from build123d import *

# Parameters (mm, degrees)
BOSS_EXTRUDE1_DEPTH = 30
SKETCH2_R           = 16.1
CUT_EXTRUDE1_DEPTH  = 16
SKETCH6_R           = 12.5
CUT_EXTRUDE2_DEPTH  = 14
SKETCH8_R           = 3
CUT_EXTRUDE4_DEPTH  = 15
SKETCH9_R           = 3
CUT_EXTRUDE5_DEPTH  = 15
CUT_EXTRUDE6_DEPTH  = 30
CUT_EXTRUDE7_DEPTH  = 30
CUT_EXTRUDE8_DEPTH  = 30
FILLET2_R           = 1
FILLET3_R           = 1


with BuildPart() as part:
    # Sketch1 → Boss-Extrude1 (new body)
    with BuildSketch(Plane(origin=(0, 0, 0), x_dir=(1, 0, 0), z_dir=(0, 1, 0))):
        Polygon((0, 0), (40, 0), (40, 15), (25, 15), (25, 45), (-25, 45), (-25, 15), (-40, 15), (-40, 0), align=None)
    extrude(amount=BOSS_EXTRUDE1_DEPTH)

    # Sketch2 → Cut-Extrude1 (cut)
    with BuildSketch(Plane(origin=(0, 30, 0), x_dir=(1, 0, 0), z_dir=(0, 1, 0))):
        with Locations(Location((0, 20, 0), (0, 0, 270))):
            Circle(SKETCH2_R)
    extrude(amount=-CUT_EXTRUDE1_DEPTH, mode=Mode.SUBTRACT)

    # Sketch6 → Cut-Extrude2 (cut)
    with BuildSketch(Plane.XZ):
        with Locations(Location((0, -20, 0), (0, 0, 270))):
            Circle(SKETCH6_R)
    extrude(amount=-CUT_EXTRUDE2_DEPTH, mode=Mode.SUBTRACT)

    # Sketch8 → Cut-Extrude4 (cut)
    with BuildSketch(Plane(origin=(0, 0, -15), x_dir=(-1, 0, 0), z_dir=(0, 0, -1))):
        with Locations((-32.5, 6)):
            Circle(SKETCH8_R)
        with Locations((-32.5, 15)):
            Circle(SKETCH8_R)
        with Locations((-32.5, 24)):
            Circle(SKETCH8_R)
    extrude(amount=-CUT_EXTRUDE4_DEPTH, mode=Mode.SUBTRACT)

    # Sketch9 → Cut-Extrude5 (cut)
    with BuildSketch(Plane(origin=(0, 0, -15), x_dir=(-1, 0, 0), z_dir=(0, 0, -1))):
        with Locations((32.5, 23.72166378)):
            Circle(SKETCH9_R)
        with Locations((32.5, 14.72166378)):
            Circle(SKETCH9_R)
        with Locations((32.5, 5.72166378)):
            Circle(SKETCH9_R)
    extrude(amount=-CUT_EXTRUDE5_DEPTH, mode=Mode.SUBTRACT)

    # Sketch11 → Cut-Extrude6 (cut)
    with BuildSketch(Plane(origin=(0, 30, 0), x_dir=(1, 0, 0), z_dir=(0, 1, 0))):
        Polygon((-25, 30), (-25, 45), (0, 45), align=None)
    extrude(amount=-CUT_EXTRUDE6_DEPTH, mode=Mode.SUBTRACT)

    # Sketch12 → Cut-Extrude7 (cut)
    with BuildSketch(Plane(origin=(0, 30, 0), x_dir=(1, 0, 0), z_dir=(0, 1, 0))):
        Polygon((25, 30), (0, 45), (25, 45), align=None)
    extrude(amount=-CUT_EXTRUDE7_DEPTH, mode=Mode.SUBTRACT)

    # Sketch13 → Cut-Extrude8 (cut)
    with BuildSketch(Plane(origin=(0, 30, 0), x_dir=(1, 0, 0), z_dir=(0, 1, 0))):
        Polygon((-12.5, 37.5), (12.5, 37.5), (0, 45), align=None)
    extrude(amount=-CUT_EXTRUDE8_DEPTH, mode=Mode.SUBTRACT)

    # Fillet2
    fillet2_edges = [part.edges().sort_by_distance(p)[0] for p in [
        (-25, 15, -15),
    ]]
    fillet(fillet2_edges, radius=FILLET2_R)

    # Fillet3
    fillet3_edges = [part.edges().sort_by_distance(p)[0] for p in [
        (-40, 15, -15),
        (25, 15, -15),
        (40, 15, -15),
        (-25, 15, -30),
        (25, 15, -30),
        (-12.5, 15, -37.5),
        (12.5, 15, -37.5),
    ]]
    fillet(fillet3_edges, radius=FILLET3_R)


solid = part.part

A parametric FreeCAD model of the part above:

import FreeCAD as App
import Part
import Sketcher

V = App.Vector


def edges_at(feature, points):
    """Names of the edges that pass closest to the given points."""
    edges = feature.Shape.Edges
    near = lambda p: min(range(len(edges)), key=lambda i: edges[i].distToShape(Part.Vertex(*p))[0])
    return sorted({f"Edge{near(p) + 1}" for p in points})

doc = App.newDocument("Part")
params = doc.addObject("Spreadsheet::Sheet", "Params")
for row, (alias, value) in enumerate([
    ("sketch1_width", "15 mm"),
    ("sketch1_width2", "50 mm"),
    ("sketch1_height", "30 mm"),
    ("pad1_length", "30 mm"),
    ("sketch2_diameter", "32.2 mm"),
    ("pocket1_length", "16 mm"),
    ("sketch3_diameter", "25 mm"),
    ("pocket2_length", "14 mm"),
    ("sketch4_diameter", "6 mm"),
    ("pocket3_length", "15 mm"),
    ("sketch5_diameter", "6 mm"),
    ("pocket4_length", "15 mm"),
    ("sketch6_width", "25 mm"),
    ("sketch6_height", "15 mm"),
    ("pocket5_length", "30 mm"),
    ("sketch7_width", "25 mm"),
    ("sketch7_height", "15 mm"),
    ("pocket6_length", "30 mm"),
    ("sketch8_width", "25 mm"),
    ("pocket7_length", "30 mm"),
    ("fillet_radius", "1 mm"),
    ("fillet2_radius", "1 mm"),
], start=1):
    params.set(f"A{row}", alias)
    params.set(f"B{row}", "=" + value)
    params.setAlias(f"B{row}", alias)

body = doc.addObject("PartDesign::Body", "Body")

# Sketch on XZ plane
sketch1 = doc.addObject("Sketcher::SketchObject", "Sketch")
body.addObject(sketch1)
sketch1.AttachmentSupport = (doc.XZ_Plane, [""])
sketch1.MapMode = "FlatFace"
sketch1.addGeometry(Part.LineSegment(V(40, 0, 0), V(40, -15, 0)), False)
sketch1.addGeometry(Part.LineSegment(V(40, -15, 0), V(25, -15, 0)), False)
sketch1.addGeometry(Part.LineSegment(V(25, -15, 0), V(25, -45, 0)), False)
sketch1.addGeometry(Part.LineSegment(V(25, -45, 0), V(-25, -45, 0)), False)
sketch1.addGeometry(Part.LineSegment(V(-25, -45, 0), V(-25, -15, 0)), False)
sketch1.addGeometry(Part.LineSegment(V(-25, -15, 0), V(-40, -15, 0)), False)
sketch1.addGeometry(Part.LineSegment(V(-40, -15, 0), V(-40, 0, 0)), False)
sketch1.addGeometry(Part.LineSegment(V(-40, 0, 0), V(40, 0, 0)), False)
sketch1.addConstraint(Sketcher.Constraint("Coincident", 0, 2, 1, 1))
sketch1.addConstraint(Sketcher.Constraint("Coincident", 1, 2, 2, 1))
sketch1.addConstraint(Sketcher.Constraint("Coincident", 2, 2, 3, 1))
sketch1.addConstraint(Sketcher.Constraint("Coincident", 3, 2, 4, 1))
sketch1.addConstraint(Sketcher.Constraint("Coincident", 4, 2, 5, 1))
sketch1.addConstraint(Sketcher.Constraint("Coincident", 5, 2, 6, 1))
sketch1.addConstraint(Sketcher.Constraint("Coincident", 6, 2, 7, 1))
sketch1.addConstraint(Sketcher.Constraint("Coincident", 7, 2, 0, 1))
sketch1.addConstraint(Sketcher.Constraint("Vertical", 0))
sketch1.addConstraint(Sketcher.Constraint("Horizontal", 1))
sketch1.addConstraint(Sketcher.Constraint("Vertical", 2))
sketch1.addConstraint(Sketcher.Constraint("Horizontal", 3))
sketch1.addConstraint(Sketcher.Constraint("Vertical", 4))
sketch1.addConstraint(Sketcher.Constraint("Horizontal", 5))
sketch1.addConstraint(Sketcher.Constraint("Vertical", 6))
sketch1.addConstraint(Sketcher.Constraint("Horizontal", 7))
sketch1.addConstraint(Sketcher.Constraint("Symmetric", 6, 2, 7, 2, -1, 1))
sketch1.addConstraint(Sketcher.Constraint("Symmetric", 1, 2, 4, 2, -2))
sketch1.addConstraint(Sketcher.Constraint("Equal", 5, 0))
sketch1.addConstraint(Sketcher.Constraint("DistanceX", 1, 2, 1, 1, 15.0))
sketch1.addConstraint(Sketcher.Constraint("DistanceX", 3, 2, 3, 1, 50.0))
sketch1.addConstraint(Sketcher.Constraint("DistanceY", 2, 2, 2, 1, 30.0))
sketch1.setExpression("Constraints[19]", "Params.sketch1_width")
sketch1.setExpression("Constraints[20]", "Params.sketch1_width2")
sketch1.setExpression("Constraints[21]", "Params.sketch1_height")
pad1 = doc.addObject("PartDesign::Pad", "Pad")
body.addObject(pad1)
pad1.Profile = sketch1
pad1.setExpression("Length", "Params.pad1_length")
pad1.Reversed = True

# Sketch on XZ plane
sketch2 = doc.addObject("Sketcher::SketchObject", "Sketch001")
body.addObject(sketch2)
sketch2.AttachmentSupport = (doc.XZ_Plane, [""])
sketch2.MapMode = "FlatFace"
sketch2.AttachmentOffset = App.Placement(V(0, 0, -30), App.Rotation())
sketch2.addGeometry(Part.Circle(V(0, -20, 0), V(0, 0, 1), 16), False)
sketch2.addConstraint(Sketcher.Constraint("PointOnObject", 0, 3, -2))
sketch2.addConstraint(Sketcher.Constraint("Diameter", 0, 32.2))
sketch2.addConstraint(Sketcher.Constraint("DistanceY", 0, 3, -1, 1, 20.0))
sketch2.setExpression("Constraints[1]", "Params.sketch2_diameter")
pocket1 = doc.addObject("PartDesign::Pocket", "Pocket")
body.addObject(pocket1)
pocket1.Profile = sketch2
pocket1.setExpression("Length", "Params.pocket1_length")
pocket1.Reversed = True

# Sketch on XZ plane
sketch3 = doc.addObject("Sketcher::SketchObject", "Sketch002")
body.addObject(sketch3)
sketch3.AttachmentSupport = (doc.XZ_Plane, [""])
sketch3.MapMode = "FlatFace"
sketch3.addGeometry(Part.Circle(V(0, -20, 0), V(0, 0, 1), 12), False)
sketch3.addConstraint(Sketcher.Constraint("PointOnObject", 0, 3, -2))
sketch3.addConstraint(Sketcher.Constraint("Diameter", 0, 25.0))
sketch3.addConstraint(Sketcher.Constraint("DistanceY", 0, 3, -1, 1, 20.0))
sketch3.setExpression("Constraints[1]", "Params.sketch3_diameter")
pocket2 = doc.addObject("PartDesign::Pocket", "Pocket001")
body.addObject(pocket2)
pocket2.Profile = sketch3
pocket2.setExpression("Length", "Params.pocket2_length")

# Sketch on XY plane
sketch4 = doc.addObject("Sketcher::SketchObject", "Sketch003")
body.addObject(sketch4)
sketch4.AttachmentSupport = (doc.XY_Plane, [""])
sketch4.MapMode = "FlatFace"
sketch4.AttachmentOffset = App.Placement(V(0, 0, -15), App.Rotation())
sketch4.addGeometry(Part.Circle(V(32.5, 6, 0), V(0, 0, 1), 3), False)
sketch4.addGeometry(Part.Circle(V(32.5, 15, 0), V(0, 0, 1), 3), False)
sketch4.addGeometry(Part.Circle(V(32.5, 24, 0), V(0, 0, 1), 3), False)
sketch4.addConstraint(Sketcher.Constraint("Equal", 0, 1))
sketch4.addConstraint(Sketcher.Constraint("Equal", 1, 2))
sketch4.addConstraint(Sketcher.Constraint("Vertical", 0, 3, 1, 3))
sketch4.addConstraint(Sketcher.Constraint("Vertical", 1, 3, 2, 3))
sketch4.addConstraint(Sketcher.Constraint("Diameter", 0, 6.0))
sketch4.addConstraint(Sketcher.Constraint("DistanceY", -1, 1, 0, 3, 6.0))
sketch4.addConstraint(Sketcher.Constraint("DistanceY", -1, 1, 1, 3, 15.0))
sketch4.addConstraint(Sketcher.Constraint("DistanceY", -1, 1, 2, 3, 24.0))
sketch4.addConstraint(Sketcher.Constraint("DistanceX", -1, 1, 0, 3, 32.5))
sketch4.setExpression("Constraints[4]", "Params.sketch4_diameter")
pocket3 = doc.addObject("PartDesign::Pocket", "Pocket002")
body.addObject(pocket3)
pocket3.Profile = sketch4
pocket3.setExpression("Length", "Params.pocket3_length")
pocket3.Reversed = True

# Sketch on XY plane
sketch5 = doc.addObject("Sketcher::SketchObject", "Sketch004")
body.addObject(sketch5)
sketch5.AttachmentSupport = (doc.XY_Plane, [""])
sketch5.MapMode = "FlatFace"
sketch5.AttachmentOffset = App.Placement(V(0, 0, -15), App.Rotation())
sketch5.addGeometry(Part.Circle(V(-32.5, 23.7, 0), V(0, 0, 1), 3), False)
sketch5.addGeometry(Part.Circle(V(-32.5, 14.7, 0), V(0, 0, 1), 3), False)
sketch5.addGeometry(Part.Circle(V(-32.5, 5.7, 0), V(0, 0, 1), 3), False)
sketch5.addConstraint(Sketcher.Constraint("Equal", 0, 1))
sketch5.addConstraint(Sketcher.Constraint("Equal", 1, 2))
sketch5.addConstraint(Sketcher.Constraint("Vertical", 0, 3, 1, 3))
sketch5.addConstraint(Sketcher.Constraint("Vertical", 1, 3, 2, 3))
sketch5.addConstraint(Sketcher.Constraint("Diameter", 0, 6.0))
sketch5.addConstraint(Sketcher.Constraint("DistanceY", 1, 3, 0, 3, 9.0))
sketch5.addConstraint(Sketcher.Constraint("DistanceY", 2, 3, 1, 3, 9.0))
sketch5.addConstraint(Sketcher.Constraint("DistanceX", 0, 3, -1, 1, 32.5))
sketch5.addConstraint(Sketcher.Constraint("DistanceY", -1, 1, 0, 3, 23.721664))
sketch5.setExpression("Constraints[4]", "Params.sketch5_diameter")
pocket4 = doc.addObject("PartDesign::Pocket", "Pocket003")
body.addObject(pocket4)
pocket4.Profile = sketch5
pocket4.setExpression("Length", "Params.pocket4_length")
pocket4.Reversed = True

# Sketch on XZ plane
sketch6 = doc.addObject("Sketcher::SketchObject", "Sketch005")
body.addObject(sketch6)
sketch6.AttachmentSupport = (doc.XZ_Plane, [""])
sketch6.MapMode = "FlatFace"
sketch6.AttachmentOffset = App.Placement(V(0, 0, -30), App.Rotation())
sketch6.addGeometry(Part.LineSegment(V(-25, -45, 0), V(-25, -30, 0)), False)
sketch6.addGeometry(Part.LineSegment(V(-25, -30, 0), V(0, -45, 0)), False)
sketch6.addGeometry(Part.LineSegment(V(0, -45, 0), V(-25, -45, 0)), False)
sketch6.addConstraint(Sketcher.Constraint("Coincident", 0, 2, 1, 1))
sketch6.addConstraint(Sketcher.Constraint("Coincident", 1, 2, 2, 1))
sketch6.addConstraint(Sketcher.Constraint("Coincident", 2, 2, 0, 1))
sketch6.addConstraint(Sketcher.Constraint("Vertical", 0))
sketch6.addConstraint(Sketcher.Constraint("Horizontal", 2))
sketch6.addConstraint(Sketcher.Constraint("PointOnObject", 1, 2, -2))
sketch6.addConstraint(Sketcher.Constraint("DistanceX", 2, 2, 2, 1, 25.0))
sketch6.addConstraint(Sketcher.Constraint("DistanceY", 0, 1, 0, 2, 15.0))
sketch6.addConstraint(Sketcher.Constraint("DistanceY", 0, 2, -1, 1, 30.0))
sketch6.setExpression("Constraints[6]", "Params.sketch6_width")
sketch6.setExpression("Constraints[7]", "Params.sketch6_height")
pocket5 = doc.addObject("PartDesign::Pocket", "Pocket004")
body.addObject(pocket5)
pocket5.Profile = sketch6
pocket5.setExpression("Length", "Params.pocket5_length")
pocket5.Reversed = True

# Sketch on XZ plane
sketch7 = doc.addObject("Sketcher::SketchObject", "Sketch006")
body.addObject(sketch7)
sketch7.AttachmentSupport = (doc.XZ_Plane, [""])
sketch7.MapMode = "FlatFace"
sketch7.AttachmentOffset = App.Placement(V(0, 0, -30), App.Rotation())
sketch7.addGeometry(Part.LineSegment(V(0, -45, 0), V(25, -30, 0)), False)
sketch7.addGeometry(Part.LineSegment(V(25, -30, 0), V(25, -45, 0)), False)
sketch7.addGeometry(Part.LineSegment(V(25, -45, 0), V(0, -45, 0)), False)
sketch7.addConstraint(Sketcher.Constraint("Coincident", 0, 2, 1, 1))
sketch7.addConstraint(Sketcher.Constraint("Coincident", 1, 2, 2, 1))
sketch7.addConstraint(Sketcher.Constraint("Coincident", 2, 2, 0, 1))
sketch7.addConstraint(Sketcher.Constraint("Vertical", 1))
sketch7.addConstraint(Sketcher.Constraint("Horizontal", 2))
sketch7.addConstraint(Sketcher.Constraint("PointOnObject", 2, 2, -2))
sketch7.addConstraint(Sketcher.Constraint("DistanceX", 2, 2, 2, 1, 25.0))
sketch7.addConstraint(Sketcher.Constraint("DistanceY", 1, 2, 1, 1, 15.0))
sketch7.addConstraint(Sketcher.Constraint("DistanceY", 0, 2, -1, 1, 30.0))
sketch7.setExpression("Constraints[6]", "Params.sketch7_width")
sketch7.setExpression("Constraints[7]", "Params.sketch7_height")
pocket6 = doc.addObject("PartDesign::Pocket", "Pocket005")
body.addObject(pocket6)
pocket6.Profile = sketch7
pocket6.setExpression("Length", "Params.pocket6_length")
pocket6.Reversed = True

# Sketch on XZ plane
sketch8 = doc.addObject("Sketcher::SketchObject", "Sketch007")
body.addObject(sketch8)
sketch8.AttachmentSupport = (doc.XZ_Plane, [""])
sketch8.MapMode = "FlatFace"
sketch8.AttachmentOffset = App.Placement(V(0, 0, -30), App.Rotation())
sketch8.addGeometry(Part.LineSegment(V(-12, -38, 0), V(12, -38, 0)), False)
sketch8.addGeometry(Part.LineSegment(V(12, -38, 0), V(0, -45, 0)), False)
sketch8.addGeometry(Part.LineSegment(V(0, -45, 0), V(-12, -38, 0)), False)
sketch8.addConstraint(Sketcher.Constraint("Coincident", 0, 2, 1, 1))
sketch8.addConstraint(Sketcher.Constraint("Coincident", 1, 2, 2, 1))
sketch8.addConstraint(Sketcher.Constraint("Coincident", 2, 2, 0, 1))
sketch8.addConstraint(Sketcher.Constraint("Horizontal", 0))
sketch8.addConstraint(Sketcher.Constraint("PointOnObject", 1, 2, -2))
sketch8.addConstraint(Sketcher.Constraint("Equal", 1, 2))
sketch8.addConstraint(Sketcher.Constraint("DistanceX", 0, 1, 0, 2, 25.0))
sketch8.addConstraint(Sketcher.Constraint("DistanceY", 1, 2, -1, 1, 45.0))
sketch8.addConstraint(Sketcher.Constraint("DistanceY", 0, 2, -1, 1, 37.5))
sketch8.setExpression("Constraints[6]", "Params.sketch8_width")
pocket7 = doc.addObject("PartDesign::Pocket", "Pocket006")
body.addObject(pocket7)
pocket7.Profile = sketch8
pocket7.setExpression("Length", "Params.pocket7_length")
pocket7.Reversed = True
doc.recompute()

fillet = doc.addObject("PartDesign::Fillet", "Fillet")
body.addObject(fillet)
fillet.Base = (pocket7, edges_at(pocket7, [(-25, 15, -15)]))
fillet.setExpression("Radius", "Params.fillet_radius")
doc.recompute()

fillet2 = doc.addObject("PartDesign::Fillet", "Fillet001")
body.addObject(fillet2)
fillet2.Base = (fillet, edges_at(fillet, [
    (-40, 15, -15),
    (25, 15, -15),
    (40, 15, -15),
    (-25, 15, -30),
    (25, 15, -30),
    (-12.5, 15, -37.5),
    (12.5, 15, -37.5),
]))
fillet2.setExpression("Radius", "Params.fillet2_radius")

doc.recompute()
